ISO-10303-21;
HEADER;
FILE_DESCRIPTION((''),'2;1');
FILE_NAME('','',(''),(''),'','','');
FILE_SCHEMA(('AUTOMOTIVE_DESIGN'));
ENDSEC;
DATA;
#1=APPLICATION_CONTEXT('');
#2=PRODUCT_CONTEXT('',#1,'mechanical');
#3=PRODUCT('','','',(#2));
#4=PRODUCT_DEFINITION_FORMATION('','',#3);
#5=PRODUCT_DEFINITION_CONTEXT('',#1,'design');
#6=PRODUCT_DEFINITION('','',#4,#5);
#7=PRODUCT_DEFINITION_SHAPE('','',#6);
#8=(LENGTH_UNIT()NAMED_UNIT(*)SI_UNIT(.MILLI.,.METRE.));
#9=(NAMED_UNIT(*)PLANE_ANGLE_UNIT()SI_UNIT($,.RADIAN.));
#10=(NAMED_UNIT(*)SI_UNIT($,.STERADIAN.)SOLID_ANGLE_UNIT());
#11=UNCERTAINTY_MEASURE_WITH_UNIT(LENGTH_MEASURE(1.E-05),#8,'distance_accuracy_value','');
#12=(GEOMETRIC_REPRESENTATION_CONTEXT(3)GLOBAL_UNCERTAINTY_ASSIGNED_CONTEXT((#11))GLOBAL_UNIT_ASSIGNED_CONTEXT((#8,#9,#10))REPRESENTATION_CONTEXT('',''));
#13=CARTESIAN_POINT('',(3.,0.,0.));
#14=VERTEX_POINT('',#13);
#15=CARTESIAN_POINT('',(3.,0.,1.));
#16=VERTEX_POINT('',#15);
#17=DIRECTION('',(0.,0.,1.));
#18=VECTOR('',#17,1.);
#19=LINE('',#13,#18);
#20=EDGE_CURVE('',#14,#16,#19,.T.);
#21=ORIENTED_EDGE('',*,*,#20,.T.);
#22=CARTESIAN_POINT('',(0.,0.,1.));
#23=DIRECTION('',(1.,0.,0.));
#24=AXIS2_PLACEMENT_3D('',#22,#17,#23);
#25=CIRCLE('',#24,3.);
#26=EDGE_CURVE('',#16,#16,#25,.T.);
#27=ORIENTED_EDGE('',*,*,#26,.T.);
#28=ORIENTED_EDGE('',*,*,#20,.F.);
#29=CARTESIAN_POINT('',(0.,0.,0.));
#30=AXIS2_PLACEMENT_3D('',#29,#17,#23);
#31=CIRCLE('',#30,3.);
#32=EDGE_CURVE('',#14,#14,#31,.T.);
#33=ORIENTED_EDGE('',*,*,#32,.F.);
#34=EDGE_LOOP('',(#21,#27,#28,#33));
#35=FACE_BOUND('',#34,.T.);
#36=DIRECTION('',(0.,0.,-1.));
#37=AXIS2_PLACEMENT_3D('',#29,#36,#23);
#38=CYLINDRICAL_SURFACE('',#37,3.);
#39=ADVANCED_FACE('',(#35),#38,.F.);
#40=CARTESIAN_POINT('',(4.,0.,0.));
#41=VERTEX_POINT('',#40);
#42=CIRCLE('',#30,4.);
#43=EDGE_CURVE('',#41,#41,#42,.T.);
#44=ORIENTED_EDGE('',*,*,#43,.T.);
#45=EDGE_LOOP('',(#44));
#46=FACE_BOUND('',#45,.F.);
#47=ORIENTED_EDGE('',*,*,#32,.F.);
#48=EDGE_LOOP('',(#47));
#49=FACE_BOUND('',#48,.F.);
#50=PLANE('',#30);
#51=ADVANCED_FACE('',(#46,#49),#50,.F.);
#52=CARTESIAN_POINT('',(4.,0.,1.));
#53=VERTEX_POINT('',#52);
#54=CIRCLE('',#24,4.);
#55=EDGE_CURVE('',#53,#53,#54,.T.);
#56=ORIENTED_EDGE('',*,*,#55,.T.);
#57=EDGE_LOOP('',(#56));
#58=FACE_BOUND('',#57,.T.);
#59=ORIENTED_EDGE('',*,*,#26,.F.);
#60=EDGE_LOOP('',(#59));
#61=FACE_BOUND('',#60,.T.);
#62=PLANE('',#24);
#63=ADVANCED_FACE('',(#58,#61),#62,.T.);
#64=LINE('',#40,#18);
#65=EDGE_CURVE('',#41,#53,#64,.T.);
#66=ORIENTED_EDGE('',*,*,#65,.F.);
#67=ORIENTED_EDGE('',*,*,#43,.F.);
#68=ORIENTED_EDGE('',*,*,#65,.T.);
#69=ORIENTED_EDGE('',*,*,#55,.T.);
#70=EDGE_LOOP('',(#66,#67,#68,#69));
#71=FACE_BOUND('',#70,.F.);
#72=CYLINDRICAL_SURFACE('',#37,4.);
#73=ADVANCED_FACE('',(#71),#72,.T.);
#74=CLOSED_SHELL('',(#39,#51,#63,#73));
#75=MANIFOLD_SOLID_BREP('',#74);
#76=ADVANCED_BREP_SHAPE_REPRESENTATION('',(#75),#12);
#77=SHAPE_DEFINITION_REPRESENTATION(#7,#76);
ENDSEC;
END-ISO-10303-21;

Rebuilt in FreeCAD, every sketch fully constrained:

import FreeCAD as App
import Part
import Sketcher

V = App.Vector

doc = App.newDocument("Part")
body = doc.addObject("PartDesign::Body", "Body")

# Sketch on XY plane
sketch1 = body.newObject("Sketcher::SketchObject", "Sketch")
sketch1.AttachmentSupport = (doc.getObject("XY_Plane"), [""])
sketch1.MapMode = "FlatFace"
sketch1.addGeometry([
    Part.Circle(V(0, 0, 0), V(0, 0, 1), 4),
    Part.Circle(V(0, 0, 0), V(0, 0, 1), 3),
], False)
sketch1.addConstraint([
    Sketcher.Constraint("Coincident", 0, 3, -1, 1),
    Sketcher.Constraint("Coincident", 1, 3, -1, 1),
    Sketcher.Constraint("Diameter", 0, 8.0),
    Sketcher.Constraint("Diameter", 1, 6.0),
])
pad1 = body.newObject("PartDesign::Pad", "Pad")
pad1.Profile = sketch1
pad1.Length = 1

doc.recompute()
